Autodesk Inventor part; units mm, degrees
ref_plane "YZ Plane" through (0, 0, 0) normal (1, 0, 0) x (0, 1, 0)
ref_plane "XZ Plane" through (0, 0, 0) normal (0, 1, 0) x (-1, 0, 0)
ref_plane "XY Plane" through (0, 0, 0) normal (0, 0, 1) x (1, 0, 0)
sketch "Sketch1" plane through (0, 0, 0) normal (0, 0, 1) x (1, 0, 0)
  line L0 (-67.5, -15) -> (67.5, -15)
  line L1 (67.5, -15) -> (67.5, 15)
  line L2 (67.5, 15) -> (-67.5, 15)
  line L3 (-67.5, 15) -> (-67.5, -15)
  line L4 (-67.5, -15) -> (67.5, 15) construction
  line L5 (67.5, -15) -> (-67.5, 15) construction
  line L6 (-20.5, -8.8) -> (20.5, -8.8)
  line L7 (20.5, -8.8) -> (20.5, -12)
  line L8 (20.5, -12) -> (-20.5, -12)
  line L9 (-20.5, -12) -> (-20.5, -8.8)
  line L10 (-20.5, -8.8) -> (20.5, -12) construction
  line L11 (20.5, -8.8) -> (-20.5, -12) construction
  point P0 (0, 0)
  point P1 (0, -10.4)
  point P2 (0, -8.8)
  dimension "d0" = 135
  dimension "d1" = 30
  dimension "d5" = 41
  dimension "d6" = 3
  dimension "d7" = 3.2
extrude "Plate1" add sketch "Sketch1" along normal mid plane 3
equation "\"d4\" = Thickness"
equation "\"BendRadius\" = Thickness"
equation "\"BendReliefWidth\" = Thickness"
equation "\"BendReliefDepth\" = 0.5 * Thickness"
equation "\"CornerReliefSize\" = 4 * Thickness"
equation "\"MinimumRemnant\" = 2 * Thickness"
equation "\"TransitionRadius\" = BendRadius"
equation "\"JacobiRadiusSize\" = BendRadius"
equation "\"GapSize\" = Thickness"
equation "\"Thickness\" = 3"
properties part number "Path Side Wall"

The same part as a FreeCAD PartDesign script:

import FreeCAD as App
import Part
import Sketcher
from FreeCAD import Vector


def add_polygon(sketch, points):
    """Adds a closed chain of lines whose ends are joined by coincident constraints."""
    first, n = sketch.GeometryCount, len(points)
    for a, b in zip(points, points[1:] + points[:1]):
        sketch.addGeometry(Part.LineSegment(App.Vector(*a, 0), App.Vector(*b, 0)), False)
    for i in range(n):
        sketch.addConstraint(Sketcher.Constraint("Coincident", first + i, 2, first + (i + 1) % n, 1))

doc = App.newDocument("Part")
body = doc.addObject("PartDesign::Body", "Body")

sketch1 = body.newObject("Sketcher::SketchObject", "Sketch")
sketch1.AttachmentSupport = (doc.getObject("XY_Plane"), [""])
sketch1.MapMode = "FlatFace"
add_polygon(sketch1, [(-67.5, 15), (-67.5, -15), (67.5, -15), (67.5, 15)])
add_polygon(sketch1, [(-20.5, -12), (-20.5, -8.8), (20.5, -8.8), (20.5, -12)])
sketch1.addConstraint([
    Sketcher.Constraint("Vertical", 0),
    Sketcher.Constraint("Horizontal", 1),
    Sketcher.Constraint("Vertical", 2),
    Sketcher.Constraint("Horizontal", 3),
    Sketcher.Constraint("Vertical", 4),
    Sketcher.Constraint("Horizontal", 5),
    Sketcher.Constraint("Vertical", 6),
    Sketcher.Constraint("Horizontal", 7),
    Sketcher.Constraint("Symmetric", 0, 2, 2, 2, -1, 1),
    Sketcher.Constraint("DistanceX", 1, 1, 1, 2, 135.0),
    Sketcher.Constraint("DistanceX", 5, 1, 5, 2, 41.0),
    Sketcher.Constraint("DistanceY", 0, 2, 0, 1, 30.0),
    Sketcher.Constraint("DistanceY", 4, 1, 4, 2, 3.2),
    Sketcher.Constraint("DistanceY", 1, 2, 6, 2, 3.0),
    Sketcher.Constraint("DistanceX", 0, 2, 4, 2, 47.0),
])
pad1 = body.newObject("PartDesign::Pad", "Pad")
pad1.Profile = sketch1
pad1.Length = 3
pad1.Midplane = True

doc.recompute()
